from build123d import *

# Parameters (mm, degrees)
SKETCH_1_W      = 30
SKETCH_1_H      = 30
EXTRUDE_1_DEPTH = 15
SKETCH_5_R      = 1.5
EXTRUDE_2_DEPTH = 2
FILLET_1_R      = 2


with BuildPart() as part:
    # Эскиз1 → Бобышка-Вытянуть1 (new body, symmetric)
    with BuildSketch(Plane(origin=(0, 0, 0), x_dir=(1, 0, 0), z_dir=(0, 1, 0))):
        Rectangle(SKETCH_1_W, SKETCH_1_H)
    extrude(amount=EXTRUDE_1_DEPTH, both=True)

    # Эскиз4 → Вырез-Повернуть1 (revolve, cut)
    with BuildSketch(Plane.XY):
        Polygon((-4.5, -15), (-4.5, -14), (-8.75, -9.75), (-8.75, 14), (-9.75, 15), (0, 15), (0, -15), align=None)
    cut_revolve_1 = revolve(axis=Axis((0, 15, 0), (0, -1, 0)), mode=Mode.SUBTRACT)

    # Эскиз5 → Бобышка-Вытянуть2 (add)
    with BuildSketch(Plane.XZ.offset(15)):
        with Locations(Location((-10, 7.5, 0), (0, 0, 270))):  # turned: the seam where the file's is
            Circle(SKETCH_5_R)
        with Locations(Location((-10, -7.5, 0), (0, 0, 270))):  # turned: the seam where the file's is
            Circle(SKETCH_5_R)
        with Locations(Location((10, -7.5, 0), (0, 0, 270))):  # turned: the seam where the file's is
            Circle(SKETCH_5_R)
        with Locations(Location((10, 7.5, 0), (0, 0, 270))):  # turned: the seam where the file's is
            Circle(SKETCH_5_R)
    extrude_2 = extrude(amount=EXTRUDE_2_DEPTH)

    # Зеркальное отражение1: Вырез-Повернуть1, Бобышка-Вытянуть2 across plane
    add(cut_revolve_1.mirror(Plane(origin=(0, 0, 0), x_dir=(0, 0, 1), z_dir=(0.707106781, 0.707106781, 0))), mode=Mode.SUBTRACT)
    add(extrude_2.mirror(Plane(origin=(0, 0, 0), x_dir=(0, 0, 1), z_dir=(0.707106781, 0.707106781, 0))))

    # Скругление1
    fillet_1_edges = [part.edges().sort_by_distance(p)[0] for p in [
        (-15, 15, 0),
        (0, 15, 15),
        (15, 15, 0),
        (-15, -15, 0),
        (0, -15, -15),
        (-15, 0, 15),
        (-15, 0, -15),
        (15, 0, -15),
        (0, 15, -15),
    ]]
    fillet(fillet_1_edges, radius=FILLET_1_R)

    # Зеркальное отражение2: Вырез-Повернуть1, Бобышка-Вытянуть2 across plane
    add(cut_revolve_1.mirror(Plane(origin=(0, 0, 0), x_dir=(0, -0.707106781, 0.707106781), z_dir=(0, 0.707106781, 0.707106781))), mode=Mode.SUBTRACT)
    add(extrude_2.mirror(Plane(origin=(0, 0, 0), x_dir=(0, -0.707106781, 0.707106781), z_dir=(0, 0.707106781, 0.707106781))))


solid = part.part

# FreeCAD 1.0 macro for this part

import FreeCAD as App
import Part
import Sketcher

V = App.Vector
Q = App.Units.Quantity


def edges_at(feature, points):
    """Names of the edges that pass closest to the given points."""
    edges = feature.Shape.Edges
    near = lambda p: min(range(len(edges)), key=lambda i: edges[i].distToShape(Part.Vertex(*p))[0])
    return sorted({f"Edge{near(p) + 1}" for p in points})

doc = App.newDocument("Part")
body = doc.addObject("PartDesign::Body", "Body")

# Sketch on XZ plane
sketch1 = doc.addObject("Sketcher::SketchObject", "Sketch")
body.addObject(sketch1)
sketch1.AttachmentSupport = (doc.XZ_Plane, [""])
sketch1.MapMode = "FlatFace"
sketch1.addGeometry([
    Part.LineSegment(V(-15, -15, 0), V(-15, 15, 0)),
    Part.LineSegment(V(-15, 15, 0), V(15, 15, 0)),
    Part.LineSegment(V(15, 15, 0), V(15, -15, 0)),
    Part.LineSegment(V(15, -15, 0), V(-15, -15, 0)),
], False)
sketch1.addConstraint([
    Sketcher.Constraint("Coincident", 0, 2, 1, 1),
    Sketcher.Constraint("Coincident", 1, 2, 2, 1),
    Sketcher.Constraint("Coincident", 2, 2, 3, 1),
    Sketcher.Constraint("Coincident", 3, 2, 0, 1),
    Sketcher.Constraint("Vertical", 0),
    Sketcher.Constraint("Horizontal", 1),
    Sketcher.Constraint("Vertical", 2),
    Sketcher.Constraint("Horizontal", 3),
    Sketcher.Constraint("Symmetric", 0, 2, 2, 2, -1, 1),
    Sketcher.Constraint("Equal", 3, 0),
    Sketcher.Constraint("DistanceX", 1, 1, 1, 2, Q("30 mm")),
])
pad1 = doc.addObject("PartDesign::Pad", "Pad")
body.addObject(pad1)
pad1.Profile = sketch1
pad1.Length = 30
pad1.Midplane = True

# Sketch on XY plane
sketch2 = doc.addObject("Sketcher::SketchObject", "Sketch001")
body.addObject(sketch2)
sketch2.AttachmentSupport = (doc.XY_Plane, [""])
sketch2.MapMode = "FlatFace"
sketch2.addGeometry([
    Part.LineSegment(V(-4.5, -14, 0), V(-4.5, -15, 0)),  # 0
    Part.LineSegment(V(-4.5, -15, 0), V(0, -15, 0)),  # 1
    Part.LineSegment(V(0, -15, 0), V(0, 15, 0)),  # 2
    Part.LineSegment(V(0, 15, 0), V(-9.8, 15, 0)),  # 3
    Part.LineSegment(V(-9.8, 15, 0), V(-8.8, 14, 0)),  # 4
    Part.LineSegment(V(-8.8, 14, 0), V(-8.8, -9.8, 0)),  # 5
    Part.LineSegment(V(-8.8, -9.8, 0), V(-4.5, -14, 0)),  # 6
], False)
sketch2.addConstraint([
    Sketcher.Constraint("Coincident", 0, 2, 1, 1),
    Sketcher.Constraint("Coincident", 1, 2, 2, 1),
    Sketcher.Constraint("Coincident", 2, 2, 3, 1),
    Sketcher.Constraint("Coincident", 3, 2, 4, 1),
    Sketcher.Constraint("Coincident", 4, 2, 5, 1),
    Sketcher.Constraint("Coincident", 5, 2, 6, 1),
    Sketcher.Constraint("Coincident", 6, 2, 0, 1),
    Sketcher.Constraint("Vertical", 0),
    Sketcher.Constraint("Horizontal", 1),
    Sketcher.Constraint("Vertical", 2),
    Sketcher.Constraint("Horizontal", 3),
    Sketcher.Constraint("Vertical", 5),
    Sketcher.Constraint("Symmetric", 1, 2, 2, 2, -1, 1),
    Sketcher.Constraint("Parallel", 4, 6),
    Sketcher.Constraint("DistanceY", 0, 2, 0, 1, Q("1 mm")),
    Sketcher.Constraint("DistanceY", 2, 1, 2, 2, Q("30 mm")),
    Sketcher.Constraint("Angle", 4, Q("-45 deg")),
    Sketcher.Constraint("DistanceX", 1, 1, 1, 2, Q("4.5 mm")),
    Sketcher.Constraint("DistanceY", -1, 1, 4, 2, Q("14 mm")),
    Sketcher.Constraint("DistanceX", 3, 2, 3, 1, Q("9.75 mm")),
])
groove = doc.addObject("PartDesign::Groove", "Groove")
body.addObject(groove)
groove.Profile = sketch2
groove.ReferenceAxis = (sketch2, ["V_Axis"])
groove.Angle = 360

# Sketch on XZ plane
sketch3 = doc.addObject("Sketcher::SketchObject", "Sketch002")
body.addObject(sketch3)
sketch3.AttachmentSupport = (doc.XZ_Plane, [""])
sketch3.MapMode = "FlatFace"
sketch3.AttachmentOffset = App.Placement(V(0, 0, 15), App.Rotation())
sketch3.addGeometry([
    Part.Circle(V(-10, 7.5, 0), V(0, 0, 1), 1.5),
    Part.Circle(V(-10, -7.5, 0), V(0, 0, 1), 1.5),
    Part.Circle(V(10, -7.5, 0), V(0, 0, 1), 1.5),
    Part.Circle(V(10, 7.5, 0), V(0, 0, 1), 1.5),
], False)
sketch3.addConstraint([
    Sketcher.Constraint("Equal", 0, 1),
    Sketcher.Constraint("Equal", 1, 2),
    Sketcher.Constraint("Equal", 2, 3),
    Sketcher.Constraint("Symmetric", 0, 3, 2, 3, -1, 1),
    Sketcher.Constraint("Symmetric", 1, 3, 3, 3, -1, 1),
    Sketcher.Constraint("Symmetric", 1, 3, 2, 3, -2),
    Sketcher.Constraint("Diameter", 0, Q("3 mm")),
    Sketcher.Constraint("DistanceX", 0, 3, -1, 1, Q("10 mm")),
    Sketcher.Constraint("DistanceY", 1, 3, 0, 3, Q("15 mm")),
])
pad2 = doc.addObject("PartDesign::Pad", "Pad001")
body.addObject(pad2)
pad2.Profile = sketch3
pad2.Length = 2
doc.recompute()

datumplane = doc.addObject("PartDesign::Plane", "DatumPlane")
body.addObject(datumplane)
datumplane.Placement = App.Placement(V(0, 0, 0), App.Rotation(V(0.707106781, -0.707106781, 0), V(0, 0, -1), V(0.707106781, 0.707106781, 0), "ZXY"))
mirrored = doc.addObject("PartDesign::Mirrored", "Mirrored")
body.addObject(mirrored)
mirrored.Originals = [groove, pad2]
mirrored.MirrorPlane = (datumplane, [""])
body.Tip = mirrored
doc.recompute()

fillet = doc.addObject("PartDesign::Fillet", "Fillet")
body.addObject(fillet)
fillet.Base = (mirrored, edges_at(mirrored, [
    (-15, 15, 0),
    (0, 15, 15),
    (15, 15, 0),
    (-15, -15, 0),
    (0, -15, -15),
    (-15, 0, 15),
    (-15, 0, -15),
    (15, 0, -15),
    (0, 15, -15),
]))
fillet.Radius = 2
doc.recompute()

datumplane2 = doc.addObject("PartDesign::Plane", "DatumPlane001")
body.addObject(datumplane2)
datumplane2.Placement = App.Placement(V(0, 0, 0), App.Rotation(V(0, 0.707106781, -0.707106781), V(-1, 0, 0), V(0, 0.707106781, 0.707106781), "ZXY"))
mirrored2 = doc.addObject("PartDesign::Mirrored", "Mirrored001")
body.addObject(mirrored2)
mirrored2.Originals = [groove, pad2]
mirrored2.MirrorPlane = (datumplane2, [""])
body.Tip = mirrored2

doc.recompute()
